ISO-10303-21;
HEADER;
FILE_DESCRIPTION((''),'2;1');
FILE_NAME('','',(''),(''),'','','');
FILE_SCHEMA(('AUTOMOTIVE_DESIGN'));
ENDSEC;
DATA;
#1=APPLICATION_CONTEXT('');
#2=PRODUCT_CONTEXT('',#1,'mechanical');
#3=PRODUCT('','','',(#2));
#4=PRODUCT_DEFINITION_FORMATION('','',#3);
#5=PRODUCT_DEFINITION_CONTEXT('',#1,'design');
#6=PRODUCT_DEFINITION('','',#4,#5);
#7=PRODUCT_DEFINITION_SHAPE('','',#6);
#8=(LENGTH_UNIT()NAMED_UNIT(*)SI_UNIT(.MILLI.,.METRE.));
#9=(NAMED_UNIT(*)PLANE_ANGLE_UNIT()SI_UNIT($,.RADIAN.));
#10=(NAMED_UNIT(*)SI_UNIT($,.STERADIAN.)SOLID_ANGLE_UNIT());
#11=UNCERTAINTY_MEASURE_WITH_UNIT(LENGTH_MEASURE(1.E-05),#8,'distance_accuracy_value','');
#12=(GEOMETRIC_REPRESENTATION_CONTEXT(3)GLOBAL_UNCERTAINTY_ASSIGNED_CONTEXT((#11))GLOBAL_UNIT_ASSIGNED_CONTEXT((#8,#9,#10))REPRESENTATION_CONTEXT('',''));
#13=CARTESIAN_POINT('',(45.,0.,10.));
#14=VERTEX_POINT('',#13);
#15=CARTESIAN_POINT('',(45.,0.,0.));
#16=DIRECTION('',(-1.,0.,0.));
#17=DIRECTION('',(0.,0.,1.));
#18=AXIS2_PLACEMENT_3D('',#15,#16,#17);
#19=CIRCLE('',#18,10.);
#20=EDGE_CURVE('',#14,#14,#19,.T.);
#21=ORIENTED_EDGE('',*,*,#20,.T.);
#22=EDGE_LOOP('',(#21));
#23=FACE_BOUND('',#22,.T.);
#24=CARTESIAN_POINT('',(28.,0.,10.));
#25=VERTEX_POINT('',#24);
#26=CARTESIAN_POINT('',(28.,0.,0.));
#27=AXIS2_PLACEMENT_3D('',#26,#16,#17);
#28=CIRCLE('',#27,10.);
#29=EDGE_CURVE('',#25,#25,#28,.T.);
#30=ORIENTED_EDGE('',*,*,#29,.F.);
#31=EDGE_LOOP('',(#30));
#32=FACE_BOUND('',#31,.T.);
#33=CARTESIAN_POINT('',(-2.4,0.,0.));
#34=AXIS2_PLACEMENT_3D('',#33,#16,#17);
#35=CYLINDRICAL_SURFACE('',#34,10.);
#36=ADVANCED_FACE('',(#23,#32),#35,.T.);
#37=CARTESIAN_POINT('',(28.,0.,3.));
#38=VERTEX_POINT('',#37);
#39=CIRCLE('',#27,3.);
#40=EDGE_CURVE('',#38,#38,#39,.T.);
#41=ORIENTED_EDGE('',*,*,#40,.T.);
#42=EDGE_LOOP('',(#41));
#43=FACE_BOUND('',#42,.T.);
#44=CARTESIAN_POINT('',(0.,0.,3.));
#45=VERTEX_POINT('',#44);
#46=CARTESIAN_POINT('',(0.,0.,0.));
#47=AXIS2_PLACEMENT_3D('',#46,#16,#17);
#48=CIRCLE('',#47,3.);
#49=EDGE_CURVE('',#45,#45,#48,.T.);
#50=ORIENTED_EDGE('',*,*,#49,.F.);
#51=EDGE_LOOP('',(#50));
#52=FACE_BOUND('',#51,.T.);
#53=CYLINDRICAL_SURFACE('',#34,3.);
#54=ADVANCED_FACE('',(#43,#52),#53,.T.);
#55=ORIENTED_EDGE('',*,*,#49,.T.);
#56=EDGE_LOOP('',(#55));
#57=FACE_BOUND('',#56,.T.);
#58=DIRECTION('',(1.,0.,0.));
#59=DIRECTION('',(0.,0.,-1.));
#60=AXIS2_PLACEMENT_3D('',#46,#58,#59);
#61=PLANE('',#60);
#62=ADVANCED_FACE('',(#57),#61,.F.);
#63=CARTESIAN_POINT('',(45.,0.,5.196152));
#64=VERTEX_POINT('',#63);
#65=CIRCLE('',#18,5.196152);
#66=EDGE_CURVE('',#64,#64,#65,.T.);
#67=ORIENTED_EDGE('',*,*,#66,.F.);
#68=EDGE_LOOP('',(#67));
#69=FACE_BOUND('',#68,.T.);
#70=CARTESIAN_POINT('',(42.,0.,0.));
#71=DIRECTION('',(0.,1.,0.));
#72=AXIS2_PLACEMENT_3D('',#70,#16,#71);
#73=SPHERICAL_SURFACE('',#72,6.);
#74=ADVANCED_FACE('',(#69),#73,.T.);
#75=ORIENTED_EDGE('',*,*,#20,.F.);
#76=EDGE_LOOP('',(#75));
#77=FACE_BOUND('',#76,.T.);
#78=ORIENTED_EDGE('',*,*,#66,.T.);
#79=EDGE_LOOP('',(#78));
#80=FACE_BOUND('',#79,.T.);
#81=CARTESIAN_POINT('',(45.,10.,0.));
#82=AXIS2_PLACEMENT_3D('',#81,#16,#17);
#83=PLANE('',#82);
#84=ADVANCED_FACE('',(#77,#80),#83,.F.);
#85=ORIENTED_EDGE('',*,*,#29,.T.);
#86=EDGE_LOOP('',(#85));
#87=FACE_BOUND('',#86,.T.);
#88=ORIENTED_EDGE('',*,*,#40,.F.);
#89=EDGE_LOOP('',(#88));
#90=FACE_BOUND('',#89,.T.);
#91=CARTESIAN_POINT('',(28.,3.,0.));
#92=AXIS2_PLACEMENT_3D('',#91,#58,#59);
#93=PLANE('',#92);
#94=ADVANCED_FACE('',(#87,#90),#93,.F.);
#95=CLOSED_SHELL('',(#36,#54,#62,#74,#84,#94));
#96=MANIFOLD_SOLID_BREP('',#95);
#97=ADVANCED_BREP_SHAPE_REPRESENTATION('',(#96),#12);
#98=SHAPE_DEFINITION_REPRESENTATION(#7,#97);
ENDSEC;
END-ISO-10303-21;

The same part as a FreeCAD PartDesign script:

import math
import FreeCAD as App
import Part
import Sketcher
from FreeCAD import Vector

doc = App.newDocument("Part")
body = doc.addObject("PartDesign::Body", "Body")

# Sketch on XY plane
sketch1 = doc.addObject("Sketcher::SketchObject", "Sketch")
body.addObject(sketch1)
sketch1.AttachmentSupport = (doc.XY_Plane, [""])
sketch1.MapMode = "FlatFace"
sketch1.addGeometry([
    Part.LineSegment(Vector(0, 0, 0), Vector(48, 0, 0)),  # 0
    Part.ArcOfCircle(Part.Circle(Vector(42, 0, 0), Vector(0, 0, 1), 6), math.radians(0), math.radians(60)),  # 1
    Part.LineSegment(Vector(45, 5.2, 0), Vector(45, 10, 0)),  # 2
    Part.LineSegment(Vector(45, 10, 0), Vector(28, 10, 0)),  # 3
    Part.LineSegment(Vector(28, 10, 0), Vector(28, 3, 0)),  # 4
    Part.LineSegment(Vector(28, 3, 0), Vector(0, 3, 0)),  # 5
    Part.LineSegment(Vector(0, 3, 0), Vector(0, 0, 0)),  # 6
], False)
sketch1.addConstraint([
    Sketcher.Constraint("Coincident", 0, 2, 1, 1),
    Sketcher.Constraint("Coincident", 1, 2, 2, 1),
    Sketcher.Constraint("Coincident", 2, 2, 3, 1),
    Sketcher.Constraint("Coincident", 3, 2, 4, 1),
    Sketcher.Constraint("Coincident", 4, 2, 5, 1),
    Sketcher.Constraint("Coincident", 5, 2, 6, 1),
    Sketcher.Constraint("Coincident", 6, 2, 0, 1),
    Sketcher.Constraint("Horizontal", 0),
    Sketcher.Constraint("Vertical", 2),
    Sketcher.Constraint("Horizontal", 3),
    Sketcher.Constraint("Vertical", 4),
    Sketcher.Constraint("Horizontal", 5),
    Sketcher.Constraint("Vertical", 6),
    Sketcher.Constraint("Coincident", 6, 2, -1, 1),
    Sketcher.Constraint("PointOnObject", 1, 3, -1),
    Sketcher.Constraint("Radius", 1, 6.0),
    Sketcher.Constraint("DistanceX", 0, 1, 0, 2, 48.0),
    Sketcher.Constraint("DistanceX", 3, 2, 3, 1, 17.0),
    Sketcher.Constraint("DistanceX", 5, 2, 5, 1, 28.0),
    Sketcher.Constraint("DistanceY", 4, 2, 4, 1, 7.0),
    Sketcher.Constraint("DistanceY", 6, 2, 6, 1, 3.0),
])
revolution = doc.addObject("PartDesign::Revolution", "Revolution")
body.addObject(revolution)
revolution.Profile = sketch1
revolution.ReferenceAxis = (sketch1, ["H_Axis"])
revolution.Angle = 360

doc.recompute()
